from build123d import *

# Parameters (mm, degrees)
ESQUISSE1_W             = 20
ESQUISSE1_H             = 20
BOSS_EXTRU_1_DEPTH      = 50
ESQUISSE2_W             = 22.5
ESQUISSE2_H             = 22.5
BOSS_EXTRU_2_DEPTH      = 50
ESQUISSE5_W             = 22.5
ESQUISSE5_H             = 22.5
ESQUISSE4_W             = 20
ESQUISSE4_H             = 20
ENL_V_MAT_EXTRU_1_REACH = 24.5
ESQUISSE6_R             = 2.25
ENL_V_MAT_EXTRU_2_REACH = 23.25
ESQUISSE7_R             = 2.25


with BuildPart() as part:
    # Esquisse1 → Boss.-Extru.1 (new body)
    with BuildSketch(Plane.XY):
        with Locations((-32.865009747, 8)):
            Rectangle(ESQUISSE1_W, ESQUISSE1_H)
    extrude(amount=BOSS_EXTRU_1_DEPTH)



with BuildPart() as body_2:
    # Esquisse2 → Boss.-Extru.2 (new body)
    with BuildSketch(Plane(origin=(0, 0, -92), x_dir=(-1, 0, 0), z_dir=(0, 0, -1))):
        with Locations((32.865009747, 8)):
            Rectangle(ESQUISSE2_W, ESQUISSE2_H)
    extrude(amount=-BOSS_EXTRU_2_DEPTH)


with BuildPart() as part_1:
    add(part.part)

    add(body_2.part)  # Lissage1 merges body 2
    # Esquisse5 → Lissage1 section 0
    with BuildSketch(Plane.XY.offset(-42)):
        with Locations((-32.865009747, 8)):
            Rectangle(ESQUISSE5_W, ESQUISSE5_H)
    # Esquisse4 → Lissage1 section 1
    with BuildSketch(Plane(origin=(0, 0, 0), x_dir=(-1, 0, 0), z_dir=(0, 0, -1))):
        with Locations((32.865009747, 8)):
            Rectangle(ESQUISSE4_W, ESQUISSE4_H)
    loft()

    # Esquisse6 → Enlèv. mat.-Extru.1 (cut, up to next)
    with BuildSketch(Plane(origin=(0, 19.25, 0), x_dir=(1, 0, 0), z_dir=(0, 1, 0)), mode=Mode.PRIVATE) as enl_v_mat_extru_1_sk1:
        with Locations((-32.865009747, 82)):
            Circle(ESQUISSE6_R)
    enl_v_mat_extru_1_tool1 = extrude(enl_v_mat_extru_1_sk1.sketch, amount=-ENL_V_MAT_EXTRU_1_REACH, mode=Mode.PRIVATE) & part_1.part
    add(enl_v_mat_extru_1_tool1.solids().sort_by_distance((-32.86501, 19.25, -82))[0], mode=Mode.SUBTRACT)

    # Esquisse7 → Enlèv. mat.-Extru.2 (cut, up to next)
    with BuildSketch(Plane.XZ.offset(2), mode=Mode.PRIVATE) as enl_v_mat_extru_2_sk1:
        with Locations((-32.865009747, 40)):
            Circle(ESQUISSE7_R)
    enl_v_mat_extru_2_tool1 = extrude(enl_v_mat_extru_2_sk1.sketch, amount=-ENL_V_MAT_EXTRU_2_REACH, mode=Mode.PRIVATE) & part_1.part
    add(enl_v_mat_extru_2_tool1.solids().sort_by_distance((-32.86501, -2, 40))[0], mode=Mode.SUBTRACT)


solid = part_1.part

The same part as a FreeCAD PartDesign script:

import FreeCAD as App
import Part
import Sketcher
from FreeCAD import Vector


def add_polygon(sketch, points):
    """Adds a closed chain of lines whose ends are joined by coincident constraints."""
    first, n = sketch.GeometryCount, len(points)
    for a, b in zip(points, points[1:] + points[:1]):
        sketch.addGeometry(Part.LineSegment(App.Vector(*a, 0), App.Vector(*b, 0)), False)
    for i in range(n):
        sketch.addConstraint(Sketcher.Constraint("Coincident", first + i, 2, first + (i + 1) % n, 1))

doc = App.newDocument("Part")
body = doc.addObject("PartDesign::Body", "Body")

sketch1 = body.newObject("Sketcher::SketchObject", "Sketch")
sketch1.AttachmentSupport = (doc.getObject("XY_Plane"), [""])
sketch1.MapMode = "FlatFace"
add_polygon(sketch1, [(-43, 18), (-43, -2), (-23, -2), (-23, 18)])
sketch1.addConstraint(Sketcher.Constraint("Vertical", 0))
sketch1.addConstraint(Sketcher.Constraint("Horizontal", 1))
sketch1.addConstraint(Sketcher.Constraint("Vertical", 2))
sketch1.addConstraint(Sketcher.Constraint("Horizontal", 3))
sketch1.addConstraint(Sketcher.Constraint("Equal", 3, 0))
sketch1.addConstraint(Sketcher.Constraint("DistanceX", 1, 1, 1, 2, 20.0))
sketch1.addConstraint(Sketcher.Constraint("DistanceY", 0, 2, -1, 1, 2.0))
sketch1.addConstraint(Sketcher.Constraint("DistanceX", 0, 2, -1, 1, 42.86501))
pad1 = body.newObject("PartDesign::Pad", "Pad")
pad1.Profile = sketch1
pad1.Length = 50
body2 = doc.addObject("PartDesign::Body", "Body001")

sketch2 = body2.newObject("Sketcher::SketchObject", "Sketch001")
sketch2.AttachmentSupport = (doc.getObject("XY_Plane001"), [""])
sketch2.MapMode = "FlatFace"
sketch2.AttachmentOffset = App.Placement(Vector(0, 0, -92), App.Rotation())
add_polygon(sketch2, [(-22, 19), (-22, -3), (-44, -3), (-44, 19)])
sketch2.addConstraint(Sketcher.Constraint("Vertical", 0))
sketch2.addConstraint(Sketcher.Constraint("Horizontal", 1))
sketch2.addConstraint(Sketcher.Constraint("Vertical", 2))
sketch2.addConstraint(Sketcher.Constraint("Horizontal", 3))
sketch2.addConstraint(Sketcher.Constraint("Equal", 3, 0))
sketch2.addConstraint(Sketcher.Constraint("DistanceX", 1, 2, 1, 1, 22.5))
sketch2.addConstraint(Sketcher.Constraint("DistanceY", 0, 2, -1, 1, 3.25))
sketch2.addConstraint(Sketcher.Constraint("DistanceX", 0, 2, -1, 1, 21.61501))
pad2 = body2.newObject("PartDesign::Pad", "Pad001")
pad2.Profile = sketch2
pad2.Length = 50
body.AllowCompound = True
doc.recompute()

boolean = body.newObject("PartDesign::Boolean", "Boolean")
boolean.Type = "Fuse"
boolean.addObjects([body2])

sketch3 = body.newObject("Sketcher::SketchObject", "Sketch002")
sketch3.AttachmentSupport = (doc.getObject("XY_Plane"), [""])
sketch3.MapMode = "FlatFace"
sketch3.AttachmentOffset = App.Placement(Vector(0, 0, -42), App.Rotation())
add_polygon(sketch3, [(-44, 19), (-44, -3), (-22, -3), (-22, 19)])
sketch3.addConstraint(Sketcher.Constraint("Vertical", 0))
sketch3.addConstraint(Sketcher.Constraint("Horizontal", 1))
sketch3.addConstraint(Sketcher.Constraint("Vertical", 2))
sketch3.addConstraint(Sketcher.Constraint("Horizontal", 3))
sketch3.addConstraint(Sketcher.Constraint("Equal", 3, 0))
sketch3.addConstraint(Sketcher.Constraint("DistanceX", 1, 1, 1, 2, 22.5))
sketch3.addConstraint(Sketcher.Constraint("DistanceY", 0, 2, -1, 1, 3.25))
sketch3.addConstraint(Sketcher.Constraint("DistanceX", 0, 2, -1, 1, 44.11501))

sketch4 = body.newObject("Sketcher::SketchObject", "Sketch003")
sketch4.AttachmentSupport = (doc.getObject("XY_Plane"), [""])
sketch4.MapMode = "FlatFace"
add_polygon(sketch4, [(-23, 18), (-23, -2), (-43, -2), (-43, 18)])
sketch4.addConstraint(Sketcher.Constraint("Vertical", 0))
sketch4.addConstraint(Sketcher.Constraint("Horizontal", 1))
sketch4.addConstraint(Sketcher.Constraint("Vertical", 2))
sketch4.addConstraint(Sketcher.Constraint("Horizontal", 3))
sketch4.addConstraint(Sketcher.Constraint("Equal", 3, 0))
sketch4.addConstraint(Sketcher.Constraint("DistanceX", 1, 2, 1, 1, 20.0))
sketch4.addConstraint(Sketcher.Constraint("DistanceY", 0, 2, -1, 1, 2.0))
sketch4.addConstraint(Sketcher.Constraint("DistanceX", 0, 2, -1, 1, 22.86501))

additiveloft = body.newObject("PartDesign::AdditiveLoft", "AdditiveLoft")
additiveloft.Profile = sketch3
additiveloft.Sections = [sketch4]

sketch5 = body.newObject("Sketcher::SketchObject", "Sketch004")
sketch5.AttachmentSupport = (doc.getObject("XZ_Plane"), [""])
sketch5.MapMode = "FlatFace"
sketch5.AttachmentOffset = App.Placement(Vector(0, 0, -19.25), App.Rotation())
sketch5.addGeometry(Part.Circle(Vector(-32.9, -82, 0), Vector(0, 0, 1), 2.2), False)
sketch5.addConstraint(Sketcher.Constraint("Diameter", 0, 4.5))
sketch5.addConstraint(Sketcher.Constraint("DistanceY", 0, 3, -1, 1, 82.0))
sketch5.addConstraint(Sketcher.Constraint("DistanceX", 0, 3, -1, 1, 32.86501))
pocket1 = body.newObject("PartDesign::Pocket", "Pocket")
pocket1.Profile = sketch5
pocket1.Type = "UpToFirst"
pocket1.Reversed = True

sketch6 = body.newObject("Sketcher::SketchObject", "Sketch005")
sketch6.AttachmentSupport = (doc.getObject("XZ_Plane"), [""])
sketch6.MapMode = "FlatFace"
sketch6.AttachmentOffset = App.Placement(Vector(0, 0, 2), App.Rotation())
sketch6.addGeometry(Part.Circle(Vector(-32.9, 40, 0), Vector(0, 0, 1), 2.2), False)
sketch6.addConstraint(Sketcher.Constraint("Diameter", 0, 4.5))
sketch6.addConstraint(Sketcher.Constraint("DistanceY", -1, 1, 0, 3, 40.0))
sketch6.addConstraint(Sketcher.Constraint("DistanceX", 0, 3, -1, 1, 32.86501))
pocket2 = body.newObject("PartDesign::Pocket", "Pocket001")
pocket2.Profile = sketch6
pocket2.Type = "UpToFirst"

doc.recompute()
